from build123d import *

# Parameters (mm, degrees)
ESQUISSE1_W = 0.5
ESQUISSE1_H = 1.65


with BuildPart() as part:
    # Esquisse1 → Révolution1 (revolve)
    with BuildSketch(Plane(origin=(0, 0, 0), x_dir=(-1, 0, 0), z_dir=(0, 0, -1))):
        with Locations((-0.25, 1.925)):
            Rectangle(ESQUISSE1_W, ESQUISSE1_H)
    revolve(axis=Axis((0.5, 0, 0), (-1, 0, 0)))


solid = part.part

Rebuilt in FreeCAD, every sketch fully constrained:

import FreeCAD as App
import Part
import Sketcher
Q = App.Units.Quantity


def add_polygon(sketch, points):
    """Adds a closed chain of lines whose ends are joined by coincident constraints."""
    first, n = sketch.GeometryCount, len(points)
    for a, b in zip(points, points[1:] + points[:1]):
        sketch.addGeometry(Part.LineSegment(App.Vector(*a, 0), App.Vector(*b, 0)), False)
    for i in range(n):
        sketch.addConstraint(Sketcher.Constraint("Coincident", first + i, 2, first + (i + 1) % n, 1))

doc = App.newDocument("Part")
params = doc.addObject("Spreadsheet::Sheet", "Params")
for row, (alias, value) in enumerate([
    ("sketch1_width", "0.5 mm"),
    ("sketch1_height", "1.65 mm"),
    ("revolution_angle", "360 deg"),
], start=1):
    params.set(f"A{row}", alias)
    params.set(f"B{row}", "=" + value)
    params.setAlias(f"B{row}", alias)

body = doc.addObject("PartDesign::Body", "Body")

sketch1 = body.newObject("Sketcher::SketchObject", "Sketch")
sketch1.AttachmentSupport = (doc.getObject("XY_Plane"), [""])
sketch1.MapMode = "FlatFace"
add_polygon(sketch1, [(0.5, 2.8), (0.5, 1.1), (0, 1.1), (0, 2.8)])
sketch1.addConstraint([
    Sketcher.Constraint("Vertical", 0),
    Sketcher.Constraint("Horizontal", 1),
    Sketcher.Constraint("Vertical", 2),
    Sketcher.Constraint("Horizontal", 3),
    Sketcher.Constraint("PointOnObject", 1, 2, -2),
    Sketcher.Constraint("DistanceX", 1, 2, 1, 1, Q("0.5 mm")),
    Sketcher.Constraint("DistanceY", 0, 2, 0, 1, Q("1.65 mm")),
    Sketcher.Constraint("DistanceY", -1, 1, 0, 2, Q("1.1 mm")),
])
sketch1.setExpression("Constraints[9]", "Params.sketch1_width")
sketch1.setExpression("Constraints[10]", "Params.sketch1_height")
revolution = body.newObject("PartDesign::Revolution", "Revolution")
revolution.Profile = sketch1
revolution.ReferenceAxis = (sketch1, ["H_Axis"])
revolution.setExpression("Angle", "Params.revolution_angle")

doc.recompute()
